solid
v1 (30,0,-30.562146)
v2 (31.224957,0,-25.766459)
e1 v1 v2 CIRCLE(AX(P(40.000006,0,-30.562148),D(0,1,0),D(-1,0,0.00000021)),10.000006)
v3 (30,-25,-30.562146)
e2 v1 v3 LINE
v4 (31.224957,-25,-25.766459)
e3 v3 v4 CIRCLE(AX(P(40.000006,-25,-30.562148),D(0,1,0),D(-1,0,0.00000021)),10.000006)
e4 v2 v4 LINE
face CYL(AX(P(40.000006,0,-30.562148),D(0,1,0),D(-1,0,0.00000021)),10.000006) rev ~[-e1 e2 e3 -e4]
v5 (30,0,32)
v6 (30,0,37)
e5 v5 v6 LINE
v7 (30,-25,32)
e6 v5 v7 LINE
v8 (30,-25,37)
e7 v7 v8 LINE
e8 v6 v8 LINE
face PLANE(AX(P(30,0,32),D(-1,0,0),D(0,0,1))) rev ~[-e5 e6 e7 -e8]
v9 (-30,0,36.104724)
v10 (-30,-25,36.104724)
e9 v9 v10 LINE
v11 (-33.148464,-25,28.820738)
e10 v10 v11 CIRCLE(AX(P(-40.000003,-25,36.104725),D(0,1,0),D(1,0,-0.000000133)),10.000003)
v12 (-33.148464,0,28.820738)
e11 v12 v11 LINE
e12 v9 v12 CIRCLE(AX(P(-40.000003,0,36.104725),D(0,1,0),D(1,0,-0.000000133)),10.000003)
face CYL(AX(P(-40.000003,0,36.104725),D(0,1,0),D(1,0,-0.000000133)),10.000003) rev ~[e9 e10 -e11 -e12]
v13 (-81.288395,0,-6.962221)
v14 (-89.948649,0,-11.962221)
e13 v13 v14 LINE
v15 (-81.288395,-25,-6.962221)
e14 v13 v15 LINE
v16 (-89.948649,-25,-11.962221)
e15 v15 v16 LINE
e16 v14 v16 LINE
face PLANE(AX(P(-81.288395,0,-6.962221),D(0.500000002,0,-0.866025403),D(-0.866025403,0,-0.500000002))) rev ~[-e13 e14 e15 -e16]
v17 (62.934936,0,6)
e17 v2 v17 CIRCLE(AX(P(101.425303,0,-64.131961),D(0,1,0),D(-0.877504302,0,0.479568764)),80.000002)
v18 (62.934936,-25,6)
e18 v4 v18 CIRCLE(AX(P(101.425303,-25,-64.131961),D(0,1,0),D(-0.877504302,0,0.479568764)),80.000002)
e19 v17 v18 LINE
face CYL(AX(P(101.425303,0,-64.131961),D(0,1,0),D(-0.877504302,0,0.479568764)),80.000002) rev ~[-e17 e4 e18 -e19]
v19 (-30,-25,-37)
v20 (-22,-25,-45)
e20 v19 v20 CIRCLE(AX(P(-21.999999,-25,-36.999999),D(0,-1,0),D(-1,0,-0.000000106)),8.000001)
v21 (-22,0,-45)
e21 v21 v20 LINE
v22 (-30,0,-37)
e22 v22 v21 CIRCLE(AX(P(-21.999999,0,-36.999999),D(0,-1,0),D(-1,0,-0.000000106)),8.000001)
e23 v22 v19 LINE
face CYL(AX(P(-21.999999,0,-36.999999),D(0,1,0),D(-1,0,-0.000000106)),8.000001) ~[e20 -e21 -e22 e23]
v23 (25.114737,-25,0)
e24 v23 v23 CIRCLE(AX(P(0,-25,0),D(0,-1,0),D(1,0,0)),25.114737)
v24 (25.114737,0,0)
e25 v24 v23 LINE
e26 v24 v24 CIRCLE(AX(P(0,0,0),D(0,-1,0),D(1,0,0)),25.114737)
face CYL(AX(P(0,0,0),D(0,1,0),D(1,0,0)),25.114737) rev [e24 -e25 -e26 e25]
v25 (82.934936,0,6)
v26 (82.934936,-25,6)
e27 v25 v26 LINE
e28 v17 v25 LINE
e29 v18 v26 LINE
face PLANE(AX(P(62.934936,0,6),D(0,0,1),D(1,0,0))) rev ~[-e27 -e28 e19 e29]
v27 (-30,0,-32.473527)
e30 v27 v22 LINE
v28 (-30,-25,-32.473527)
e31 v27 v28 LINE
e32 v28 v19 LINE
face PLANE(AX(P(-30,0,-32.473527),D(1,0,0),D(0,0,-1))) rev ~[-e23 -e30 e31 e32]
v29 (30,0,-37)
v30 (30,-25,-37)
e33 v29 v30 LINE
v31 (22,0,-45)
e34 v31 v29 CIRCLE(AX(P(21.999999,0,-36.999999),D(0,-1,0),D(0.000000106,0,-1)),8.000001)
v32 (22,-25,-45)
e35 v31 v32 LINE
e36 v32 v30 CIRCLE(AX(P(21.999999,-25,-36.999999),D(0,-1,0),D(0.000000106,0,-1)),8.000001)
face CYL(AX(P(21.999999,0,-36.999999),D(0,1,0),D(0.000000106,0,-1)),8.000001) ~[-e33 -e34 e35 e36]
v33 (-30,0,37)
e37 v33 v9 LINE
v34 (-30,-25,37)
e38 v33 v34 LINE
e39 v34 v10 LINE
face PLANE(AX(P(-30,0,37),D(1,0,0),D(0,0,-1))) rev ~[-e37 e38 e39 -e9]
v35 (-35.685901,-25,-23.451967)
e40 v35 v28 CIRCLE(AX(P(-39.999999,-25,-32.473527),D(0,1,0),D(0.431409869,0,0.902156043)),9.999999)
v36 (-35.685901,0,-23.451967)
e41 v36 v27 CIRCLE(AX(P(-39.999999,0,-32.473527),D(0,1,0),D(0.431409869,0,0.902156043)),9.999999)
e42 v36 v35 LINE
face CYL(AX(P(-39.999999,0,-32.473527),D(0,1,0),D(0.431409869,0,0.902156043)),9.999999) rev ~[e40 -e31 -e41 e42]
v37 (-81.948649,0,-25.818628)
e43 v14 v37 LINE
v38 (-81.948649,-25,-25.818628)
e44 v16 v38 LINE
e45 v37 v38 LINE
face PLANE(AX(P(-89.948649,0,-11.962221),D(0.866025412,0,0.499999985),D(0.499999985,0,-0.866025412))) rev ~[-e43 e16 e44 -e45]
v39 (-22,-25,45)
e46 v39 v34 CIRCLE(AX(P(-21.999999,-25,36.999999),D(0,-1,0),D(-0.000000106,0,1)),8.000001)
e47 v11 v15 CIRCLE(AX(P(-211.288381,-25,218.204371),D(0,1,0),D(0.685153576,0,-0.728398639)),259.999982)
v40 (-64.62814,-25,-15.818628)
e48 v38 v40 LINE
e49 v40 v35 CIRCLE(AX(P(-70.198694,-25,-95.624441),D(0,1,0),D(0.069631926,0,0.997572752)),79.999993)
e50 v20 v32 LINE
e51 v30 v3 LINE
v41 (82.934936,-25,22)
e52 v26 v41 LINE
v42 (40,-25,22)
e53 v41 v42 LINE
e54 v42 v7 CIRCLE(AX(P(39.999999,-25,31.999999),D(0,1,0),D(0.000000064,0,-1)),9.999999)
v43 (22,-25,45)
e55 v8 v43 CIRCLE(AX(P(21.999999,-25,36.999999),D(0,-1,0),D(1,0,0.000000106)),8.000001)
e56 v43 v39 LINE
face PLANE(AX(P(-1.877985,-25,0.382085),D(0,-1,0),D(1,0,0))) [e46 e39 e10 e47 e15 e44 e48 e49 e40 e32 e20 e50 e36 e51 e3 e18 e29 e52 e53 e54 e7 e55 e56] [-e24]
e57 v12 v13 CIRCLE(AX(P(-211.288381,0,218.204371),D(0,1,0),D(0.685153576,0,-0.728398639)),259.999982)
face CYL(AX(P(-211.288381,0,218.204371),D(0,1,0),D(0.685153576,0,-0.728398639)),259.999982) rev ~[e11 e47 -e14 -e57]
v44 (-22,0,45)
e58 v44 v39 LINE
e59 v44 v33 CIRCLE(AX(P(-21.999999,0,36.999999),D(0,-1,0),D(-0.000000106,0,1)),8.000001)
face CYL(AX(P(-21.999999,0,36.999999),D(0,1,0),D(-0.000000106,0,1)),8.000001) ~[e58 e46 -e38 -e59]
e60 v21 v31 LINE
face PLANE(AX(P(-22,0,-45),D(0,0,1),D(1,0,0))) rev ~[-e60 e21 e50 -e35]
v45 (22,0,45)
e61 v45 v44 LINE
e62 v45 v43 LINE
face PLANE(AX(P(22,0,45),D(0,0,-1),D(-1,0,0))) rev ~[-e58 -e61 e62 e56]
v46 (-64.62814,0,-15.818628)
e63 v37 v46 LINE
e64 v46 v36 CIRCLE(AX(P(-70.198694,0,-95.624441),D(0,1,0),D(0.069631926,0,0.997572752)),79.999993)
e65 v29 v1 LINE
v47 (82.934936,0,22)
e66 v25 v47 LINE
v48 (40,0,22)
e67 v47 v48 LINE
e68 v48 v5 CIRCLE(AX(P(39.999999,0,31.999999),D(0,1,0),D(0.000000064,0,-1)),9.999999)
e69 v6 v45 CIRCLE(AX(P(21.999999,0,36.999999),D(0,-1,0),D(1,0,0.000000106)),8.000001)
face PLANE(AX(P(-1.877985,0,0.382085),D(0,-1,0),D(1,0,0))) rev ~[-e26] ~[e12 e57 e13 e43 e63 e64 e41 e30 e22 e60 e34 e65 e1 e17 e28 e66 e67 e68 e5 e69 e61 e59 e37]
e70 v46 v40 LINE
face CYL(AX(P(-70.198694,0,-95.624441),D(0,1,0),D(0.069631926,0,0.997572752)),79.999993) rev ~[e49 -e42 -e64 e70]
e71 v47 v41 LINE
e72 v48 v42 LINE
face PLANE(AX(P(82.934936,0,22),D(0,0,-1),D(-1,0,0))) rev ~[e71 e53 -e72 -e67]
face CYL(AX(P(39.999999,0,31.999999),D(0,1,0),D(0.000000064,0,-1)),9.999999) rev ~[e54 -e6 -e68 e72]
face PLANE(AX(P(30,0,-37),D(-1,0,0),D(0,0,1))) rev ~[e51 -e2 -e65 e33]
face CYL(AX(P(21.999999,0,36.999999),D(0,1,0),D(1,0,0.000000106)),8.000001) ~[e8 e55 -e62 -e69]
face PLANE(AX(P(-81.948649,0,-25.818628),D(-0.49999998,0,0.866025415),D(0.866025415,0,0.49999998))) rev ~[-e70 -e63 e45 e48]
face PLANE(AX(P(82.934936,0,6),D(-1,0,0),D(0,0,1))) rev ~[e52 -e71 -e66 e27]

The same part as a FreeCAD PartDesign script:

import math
import FreeCAD as App
import Part
import Sketcher
from FreeCAD import Vector
Q = App.Units.Quantity

doc = App.newDocument("Part")
params = doc.addObject("Spreadsheet::Sheet", "Params")
for row, (alias, value) in enumerate([
    ("sketch1_radius", "8.000001 mm"),
    ("sketch1_radius2", "9.999999 mm"),
    ("sketch1_radius3", "80.000002 mm"),
    ("sketch1_width", "44 mm"),
    ("sketch1_width2", "20 mm"),
    ("pad1_length", "25 mm"),
], start=1):
    params.set(f"A{row}", alias)
    params.set(f"B{row}", "=" + value)
    params.setAlias(f"B{row}", alias)

body = doc.addObject("PartDesign::Body", "Body")

# Sketch on XZ plane
sketch1 = body.newObject("Sketcher::SketchObject", "Sketch")
sketch1.AttachmentSupport = (doc.getObject("XZ_Plane"), [""])
sketch1.MapMode = "FlatFace"
sketch1.addGeometry([
    Part.LineSegment(Vector(22, 45, 0), Vector(-22, 45, 0)),  # 0
    Part.ArcOfCircle(Part.Circle(Vector(-22, 37, 0), Vector(0, 0, 1), 8), math.radians(90), math.radians(180)),  # 1
    Part.LineSegment(Vector(-30, 37, 0), Vector(-30, 36.1, 0)),  # 2
    Part.ArcOfCircle(Part.Circle(Vector(-40, 36.1, 0), Vector(0, 0, 1), 10), math.radians(-47), math.radians(0)),  # 3
    Part.ArcOfCircle(Part.Circle(Vector(-211.3, 218.2, 0), Vector(0, 0, 1), 260), math.radians(-60), math.radians(-46.75)),  # 4
    Part.LineSegment(Vector(-81.3, -7, 0), Vector(-89.9, -12, 0)),  # 5
    Part.LineSegment(Vector(-89.9, -12, 0), Vector(-81.9, -25.8, 0)),  # 6
    Part.LineSegment(Vector(-81.9, -25.8, 0), Vector(-64.6, -15.8, 0)),  # 7
    Part.ArcOfCircle(Part.Circle(Vector(-70.2, -95.6, 0), Vector(0, 0, 1), 80), math.radians(64), math.radians(86)),  # 8
    Part.ArcOfCircle(Part.Circle(Vector(-40, -32.5, 0), Vector(0, 0, 1), 10), math.radians(0), math.radians(64)),  # 9
    Part.LineSegment(Vector(-30, -32.5, 0), Vector(-30, -37, 0)),  # 10
    Part.ArcOfCircle(Part.Circle(Vector(-22, -37, 0), Vector(0, 0, 1), 8), math.radians(-180), math.radians(-90)),  # 11
    Part.LineSegment(Vector(-22, -45, 0), Vector(22, -45, 0)),  # 12
    Part.ArcOfCircle(Part.Circle(Vector(22, -37, 0), Vector(0, 0, 1), 8), math.radians(-90), math.radians(0)),  # 13
    Part.LineSegment(Vector(30, -37, 0), Vector(30, -30.6, 0)),  # 14
    Part.ArcOfCircle(Part.Circle(Vector(40, -30.6, 0), Vector(0, 0, 1), 10), math.radians(151), math.radians(180)),  # 15
    Part.ArcOfCircle(Part.Circle(Vector(101.4, -64.1, 0), Vector(0, 0, 1), 80), math.radians(119), math.radians(151)),  # 16
    Part.LineSegment(Vector(62.9, 6, 0), Vector(82.9, 6, 0)),  # 17
    Part.LineSegment(Vector(82.9, 6, 0), Vector(82.9, 22, 0)),  # 18
    Part.LineSegment(Vector(82.9, 22, 0), Vector(40, 22, 0)),  # 19
    Part.ArcOfCircle(Part.Circle(Vector(40, 32, 0), Vector(0, 0, 1), 10), math.radians(180), math.radians(270)),  # 20
    Part.LineSegment(Vector(30, 32, 0), Vector(30, 37, 0)),  # 21
    Part.ArcOfCircle(Part.Circle(Vector(22, 37, 0), Vector(0, 0, 1), 8), math.radians(0), math.radians(90)),  # 22
    Part.Circle(Vector(0, 0, 0), Vector(0, 0, 1), 25.1),  # 23
], False)
sketch1.addConstraint([
    Sketcher.Constraint("Tangent", 0, 2, 1, 1),
    Sketcher.Constraint("Tangent", 1, 2, 2, 1),
    Sketcher.Constraint("Tangent", 2, 2, 3, 2),
    Sketcher.Constraint("Tangent", 3, 1, 4, 2),
    Sketcher.Constraint("Tangent", 4, 1, 5, 1),
    Sketcher.Constraint("Coincident", 5, 2, 6, 1),
    Sketcher.Constraint("Coincident", 6, 2, 7, 1),
    Sketcher.Constraint("Coincident", 7, 2, 8, 2),
    Sketcher.Constraint("Tangent", 8, 1, 9, 2),
    Sketcher.Constraint("Tangent", 9, 1, 10, 1),
    Sketcher.Constraint("Tangent", 10, 2, 11, 1),
    Sketcher.Constraint("Tangent", 11, 2, 12, 1),
    Sketcher.Constraint("Tangent", 12, 2, 13, 1),
    Sketcher.Constraint("Tangent", 13, 2, 14, 1),
    Sketcher.Constraint("Tangent", 14, 2, 15, 2),
    Sketcher.Constraint("Tangent", 15, 1, 16, 2),
    Sketcher.Constraint("Coincident", 16, 1, 17, 1),
    Sketcher.Constraint("Coincident", 17, 2, 18, 1),
    Sketcher.Constraint("Coincident", 18, 2, 19, 1),
    Sketcher.Constraint("Tangent", 19, 2, 20, 2),
    Sketcher.Constraint("Tangent", 20, 1, 21, 1),
    Sketcher.Constraint("Tangent", 21, 2, 22, 1),
    Sketcher.Constraint("Tangent", 22, 2, 0, 1),
    Sketcher.Constraint("Horizontal", 0),
    Sketcher.Constraint("Vertical", 2),
    Sketcher.Constraint("Vertical", 10),
    Sketcher.Constraint("Horizontal", 12),
    Sketcher.Constraint("Vertical", 14),
    Sketcher.Constraint("Horizontal", 17),
    Sketcher.Constraint("Vertical", 18),
    Sketcher.Constraint("Horizontal", 19),
    Sketcher.Constraint("Vertical", 21),
    Sketcher.Constraint("Coincident", 23, 3, -1, 1),
    Sketcher.Constraint("Equal", 1, 11),
    Sketcher.Constraint("Equal", 11, 13),
    Sketcher.Constraint("Equal", 9, 20),
    Sketcher.Constraint("Equal", 13, 22),
    Sketcher.Constraint("Symmetric", 1, 3, 13, 3, -1, 1),
    Sketcher.Constraint("Perpendicular", 5, 6),
    Sketcher.Constraint("Perpendicular", 6, 7),
    Sketcher.Constraint("Vertical", 1, 3, 11, 3),
    Sketcher.Constraint("Vertical", 13, 3, 22, 3),
    Sketcher.Constraint("Radius", 1, 8.000001),
    Sketcher.Constraint("Radius", 9, 9.999999),
    Sketcher.Constraint("Radius", 16, 80.000002),
    Sketcher.Constraint("DistanceX", 0, 2, 0, 1, 44.0),
    Sketcher.Constraint("DistanceX", 17, 1, 17, 2, 20.0),
    Sketcher.Constraint("DistanceY", 18, 1, 18, 2, 16.0),
    Sketcher.Constraint("DistanceY", 21, 1, 21, 2, 5.0),
    Sketcher.Constraint("Angle", 5, Q("-150 deg")),
    Sketcher.Constraint("Distance", 5, 10.0),
    Sketcher.Constraint("Distance", 6, 16.0),
    Sketcher.Constraint("Distance", 7, 20.000001),
    Sketcher.Constraint("DistanceY", -1, 1, 1, 3, 36.999999),
    Sketcher.Constraint("DistanceX", 3, 3, 13, 3, 62.000002),
    Sketcher.Constraint("Radius", 4, 259.999982),
    Sketcher.Constraint("Diameter", 23, 50.229474),
    Sketcher.Constraint("Radius", 8, 79.999993),
    Sketcher.Constraint("Radius", 15, 10.000006),
    Sketcher.Constraint("DistanceX", 11, 3, 16, 3, 123.425302),
    Sketcher.Constraint("DistanceY", 9, 3, 6, 2, 6.654899),
    Sketcher.Constraint("DistanceX", 19, 2, 19, 1, 42.934936),
    Sketcher.Constraint("DistanceY", 2, 2, 2, 1, 0.895276),
    Sketcher.Constraint("DistanceY", 10, 2, 10, 1, 4.526473),
])
sketch1.setExpression("Constraints[42]", "Params.sketch1_radius")
sketch1.setExpression("Constraints[43]", "Params.sketch1_radius2")
sketch1.setExpression("Constraints[44]", "Params.sketch1_radius3")
sketch1.setExpression("Constraints[45]", "Params.sketch1_width")
sketch1.setExpression("Constraints[46]", "Params.sketch1_width2")
pad1 = body.newObject("PartDesign::Pad", "Pad")
pad1.Profile = sketch1
pad1.setExpression("Length", "Params.pad1_length")

doc.recompute()
